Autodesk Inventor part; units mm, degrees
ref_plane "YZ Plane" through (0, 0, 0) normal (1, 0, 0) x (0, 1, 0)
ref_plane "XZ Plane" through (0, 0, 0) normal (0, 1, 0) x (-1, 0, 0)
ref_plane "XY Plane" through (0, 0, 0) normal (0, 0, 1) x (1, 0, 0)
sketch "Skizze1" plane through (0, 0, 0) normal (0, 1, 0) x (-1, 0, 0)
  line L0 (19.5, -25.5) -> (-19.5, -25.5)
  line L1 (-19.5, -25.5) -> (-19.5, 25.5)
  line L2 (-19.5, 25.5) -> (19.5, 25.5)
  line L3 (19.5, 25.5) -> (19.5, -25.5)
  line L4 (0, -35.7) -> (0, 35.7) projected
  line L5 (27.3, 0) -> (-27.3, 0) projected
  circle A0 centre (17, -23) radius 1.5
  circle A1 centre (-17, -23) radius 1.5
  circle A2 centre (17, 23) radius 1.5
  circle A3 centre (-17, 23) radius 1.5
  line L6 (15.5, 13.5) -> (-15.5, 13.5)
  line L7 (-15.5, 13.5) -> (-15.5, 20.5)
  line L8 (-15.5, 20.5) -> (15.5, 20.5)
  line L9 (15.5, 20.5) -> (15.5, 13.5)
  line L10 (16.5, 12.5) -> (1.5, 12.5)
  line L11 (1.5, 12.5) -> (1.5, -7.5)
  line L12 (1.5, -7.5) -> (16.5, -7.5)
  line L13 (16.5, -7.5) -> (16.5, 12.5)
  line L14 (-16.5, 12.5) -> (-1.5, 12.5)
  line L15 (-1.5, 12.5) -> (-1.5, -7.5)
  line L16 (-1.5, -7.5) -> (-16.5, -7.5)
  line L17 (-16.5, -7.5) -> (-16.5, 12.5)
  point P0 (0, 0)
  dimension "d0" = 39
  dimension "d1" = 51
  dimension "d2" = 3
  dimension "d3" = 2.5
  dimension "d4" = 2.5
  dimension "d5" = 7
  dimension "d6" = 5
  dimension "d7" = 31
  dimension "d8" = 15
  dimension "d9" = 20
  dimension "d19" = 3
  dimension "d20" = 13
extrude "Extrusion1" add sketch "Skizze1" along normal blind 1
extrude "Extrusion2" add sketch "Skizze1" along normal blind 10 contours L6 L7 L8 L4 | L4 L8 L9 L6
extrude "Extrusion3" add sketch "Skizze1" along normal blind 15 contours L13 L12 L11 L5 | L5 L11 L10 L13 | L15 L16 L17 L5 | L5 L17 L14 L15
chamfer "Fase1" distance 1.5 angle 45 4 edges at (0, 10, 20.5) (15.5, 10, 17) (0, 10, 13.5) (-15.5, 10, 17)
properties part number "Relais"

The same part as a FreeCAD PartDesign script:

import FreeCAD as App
import Part
import Sketcher
from FreeCAD import Vector


def edges_at(feature, points):
    """Names of the edges that pass closest to the given points."""
    edges = feature.Shape.Edges
    near = lambda p: min(range(len(edges)), key=lambda i: edges[i].distToShape(Part.Vertex(*p))[0])
    return sorted({f"Edge{near(p) + 1}" for p in points})


def add_polygon(sketch, points):
    """Adds a closed chain of lines whose ends are joined by coincident constraints."""
    first, n = sketch.GeometryCount, len(points)
    for a, b in zip(points, points[1:] + points[:1]):
        sketch.addGeometry(Part.LineSegment(App.Vector(*a, 0), App.Vector(*b, 0)), False)
    for i in range(n):
        sketch.addConstraint(Sketcher.Constraint("Coincident", first + i, 2, first + (i + 1) % n, 1))

doc = App.newDocument("Part")
body = doc.addObject("PartDesign::Body", "Body")

# Sketch on XZ plane
sketch1 = body.newObject("Sketcher::SketchObject", "Sketch")
sketch1.AttachmentSupport = (doc.getObject("XZ_Plane"), [""])
sketch1.MapMode = "FlatFace"
add_polygon(sketch1, [(-19.5, -25.5), (-19.5, 25.5), (19.5, 25.5), (19.5, -25.5)])  # lines 0-3
sketch1.addGeometry(Part.Circle(Vector(-17, -23, 0), Vector(0, 0, 1), 1.5), False)  # 4
sketch1.addGeometry(Part.Circle(Vector(17, -23, 0), Vector(0, 0, 1), 1.5), False)  # 5
sketch1.addGeometry(Part.Circle(Vector(-17, 23, 0), Vector(0, 0, 1), 1.5), False)  # 6
sketch1.addGeometry(Part.Circle(Vector(17, 23, 0), Vector(0, 0, 1), 1.5), False)  # 7
sketch1.addConstraint([
    Sketcher.Constraint("Vertical", 0),
    Sketcher.Constraint("Horizontal", 1),
    Sketcher.Constraint("Vertical", 2),
    Sketcher.Constraint("Horizontal", 3),
    Sketcher.Constraint("Equal", 4, 5),
    Sketcher.Constraint("Equal", 5, 6),
    Sketcher.Constraint("Equal", 6, 7),
    Sketcher.Constraint("Symmetric", 5, 3, 6, 3, -1, 1),
    Sketcher.Constraint("Symmetric", 4, 3, 7, 3, -1, 1),
    Sketcher.Constraint("Symmetric", 0, 2, 2, 2, -1, 1),
    Sketcher.Constraint("Symmetric", 4, 3, 5, 3, -2),
    Sketcher.Constraint("Diameter", 4, 3.0),
    Sketcher.Constraint("DistanceX", 1, 1, 1, 2, 39.0),
    Sketcher.Constraint("DistanceY", 0, 1, 0, 2, 51.0),
    Sketcher.Constraint("DistanceX", 0, 2, 6, 3, 2.5),
    Sketcher.Constraint("DistanceY", 6, 3, 0, 2, 2.5),
])
pad1 = body.newObject("PartDesign::Pad", "Pad")
pad1.Profile = sketch1
pad1.Length = 1
pad1.Reversed = True

# Sketch on XZ plane
sketch2 = body.newObject("Sketcher::SketchObject", "Sketch001")
sketch2.AttachmentSupport = (doc.getObject("XZ_Plane"), [""])
sketch2.MapMode = "FlatFace"
add_polygon(sketch2, [(15.5, 13.5), (-15.5, 13.5), (-15.5, 20.5), (15.5, 20.5)])  # lines 0-3
sketch2.addConstraint([
    Sketcher.Constraint("Horizontal", 0),
    Sketcher.Constraint("Vertical", 1),
    Sketcher.Constraint("Horizontal", 2),
    Sketcher.Constraint("Vertical", 3),
    Sketcher.Constraint("DistanceX", 0, 2, 0, 1, 31.0),
    Sketcher.Constraint("DistanceY", 1, 1, 1, 2, 7.0),
    Sketcher.Constraint("DistanceX", 0, 2, -1, 1, 15.5),
    Sketcher.Constraint("DistanceY", -1, 1, 0, 2, 13.5),
])
pad2 = body.newObject("PartDesign::Pad", "Pad001")
pad2.Profile = sketch2
pad2.Length = 10
pad2.Reversed = True

# Sketch on XZ plane
sketch3 = body.newObject("Sketcher::SketchObject", "Sketch002")
sketch3.AttachmentSupport = (doc.getObject("XZ_Plane"), [""])
sketch3.MapMode = "FlatFace"
add_polygon(sketch3, [(-16.5, -7.5), (-16.5, 12.5), (-1.5, 12.5), (-1.5, -7.5)])  # lines 0-3
add_polygon(sketch3, [(1.5, -7.5), (1.5, 12.5), (16.5, 12.5), (16.5, -7.5)])  # lines 4-7
sketch3.addConstraint([
    Sketcher.Constraint("Vertical", 0),
    Sketcher.Constraint("Horizontal", 1),
    Sketcher.Constraint("Vertical", 2),
    Sketcher.Constraint("Horizontal", 3),
    Sketcher.Constraint("Vertical", 4),
    Sketcher.Constraint("Horizontal", 5),
    Sketcher.Constraint("Vertical", 6),
    Sketcher.Constraint("Horizontal", 7),
    Sketcher.Constraint("Symmetric", 1, 2, 4, 2, -2),
    Sketcher.Constraint("Symmetric", 3, 2, 6, 2, -2),
    Sketcher.Constraint("DistanceX", 1, 1, 1, 2, 15.0),
    Sketcher.Constraint("DistanceY", 0, 1, 0, 2, 20.0),
    Sketcher.Constraint("DistanceX", 1, 2, 4, 2, 3.0),
    Sketcher.Constraint("DistanceY", -1, 1, 0, 2, 12.5),
])
pad3 = body.newObject("PartDesign::Pad", "Pad002")
pad3.Profile = sketch3
pad3.Length = 15
pad3.Reversed = True
doc.recompute()

chamfer = body.newObject("PartDesign::Chamfer", "Chamfer")
chamfer.Base = (pad3, edges_at(pad3, [
    (0, 10, 20.5),
    (15.5, 10, 17),
    (0, 10, 13.5),
    (-15.5, 10, 17),
]))
chamfer.Size = 1.5

doc.recompute()
